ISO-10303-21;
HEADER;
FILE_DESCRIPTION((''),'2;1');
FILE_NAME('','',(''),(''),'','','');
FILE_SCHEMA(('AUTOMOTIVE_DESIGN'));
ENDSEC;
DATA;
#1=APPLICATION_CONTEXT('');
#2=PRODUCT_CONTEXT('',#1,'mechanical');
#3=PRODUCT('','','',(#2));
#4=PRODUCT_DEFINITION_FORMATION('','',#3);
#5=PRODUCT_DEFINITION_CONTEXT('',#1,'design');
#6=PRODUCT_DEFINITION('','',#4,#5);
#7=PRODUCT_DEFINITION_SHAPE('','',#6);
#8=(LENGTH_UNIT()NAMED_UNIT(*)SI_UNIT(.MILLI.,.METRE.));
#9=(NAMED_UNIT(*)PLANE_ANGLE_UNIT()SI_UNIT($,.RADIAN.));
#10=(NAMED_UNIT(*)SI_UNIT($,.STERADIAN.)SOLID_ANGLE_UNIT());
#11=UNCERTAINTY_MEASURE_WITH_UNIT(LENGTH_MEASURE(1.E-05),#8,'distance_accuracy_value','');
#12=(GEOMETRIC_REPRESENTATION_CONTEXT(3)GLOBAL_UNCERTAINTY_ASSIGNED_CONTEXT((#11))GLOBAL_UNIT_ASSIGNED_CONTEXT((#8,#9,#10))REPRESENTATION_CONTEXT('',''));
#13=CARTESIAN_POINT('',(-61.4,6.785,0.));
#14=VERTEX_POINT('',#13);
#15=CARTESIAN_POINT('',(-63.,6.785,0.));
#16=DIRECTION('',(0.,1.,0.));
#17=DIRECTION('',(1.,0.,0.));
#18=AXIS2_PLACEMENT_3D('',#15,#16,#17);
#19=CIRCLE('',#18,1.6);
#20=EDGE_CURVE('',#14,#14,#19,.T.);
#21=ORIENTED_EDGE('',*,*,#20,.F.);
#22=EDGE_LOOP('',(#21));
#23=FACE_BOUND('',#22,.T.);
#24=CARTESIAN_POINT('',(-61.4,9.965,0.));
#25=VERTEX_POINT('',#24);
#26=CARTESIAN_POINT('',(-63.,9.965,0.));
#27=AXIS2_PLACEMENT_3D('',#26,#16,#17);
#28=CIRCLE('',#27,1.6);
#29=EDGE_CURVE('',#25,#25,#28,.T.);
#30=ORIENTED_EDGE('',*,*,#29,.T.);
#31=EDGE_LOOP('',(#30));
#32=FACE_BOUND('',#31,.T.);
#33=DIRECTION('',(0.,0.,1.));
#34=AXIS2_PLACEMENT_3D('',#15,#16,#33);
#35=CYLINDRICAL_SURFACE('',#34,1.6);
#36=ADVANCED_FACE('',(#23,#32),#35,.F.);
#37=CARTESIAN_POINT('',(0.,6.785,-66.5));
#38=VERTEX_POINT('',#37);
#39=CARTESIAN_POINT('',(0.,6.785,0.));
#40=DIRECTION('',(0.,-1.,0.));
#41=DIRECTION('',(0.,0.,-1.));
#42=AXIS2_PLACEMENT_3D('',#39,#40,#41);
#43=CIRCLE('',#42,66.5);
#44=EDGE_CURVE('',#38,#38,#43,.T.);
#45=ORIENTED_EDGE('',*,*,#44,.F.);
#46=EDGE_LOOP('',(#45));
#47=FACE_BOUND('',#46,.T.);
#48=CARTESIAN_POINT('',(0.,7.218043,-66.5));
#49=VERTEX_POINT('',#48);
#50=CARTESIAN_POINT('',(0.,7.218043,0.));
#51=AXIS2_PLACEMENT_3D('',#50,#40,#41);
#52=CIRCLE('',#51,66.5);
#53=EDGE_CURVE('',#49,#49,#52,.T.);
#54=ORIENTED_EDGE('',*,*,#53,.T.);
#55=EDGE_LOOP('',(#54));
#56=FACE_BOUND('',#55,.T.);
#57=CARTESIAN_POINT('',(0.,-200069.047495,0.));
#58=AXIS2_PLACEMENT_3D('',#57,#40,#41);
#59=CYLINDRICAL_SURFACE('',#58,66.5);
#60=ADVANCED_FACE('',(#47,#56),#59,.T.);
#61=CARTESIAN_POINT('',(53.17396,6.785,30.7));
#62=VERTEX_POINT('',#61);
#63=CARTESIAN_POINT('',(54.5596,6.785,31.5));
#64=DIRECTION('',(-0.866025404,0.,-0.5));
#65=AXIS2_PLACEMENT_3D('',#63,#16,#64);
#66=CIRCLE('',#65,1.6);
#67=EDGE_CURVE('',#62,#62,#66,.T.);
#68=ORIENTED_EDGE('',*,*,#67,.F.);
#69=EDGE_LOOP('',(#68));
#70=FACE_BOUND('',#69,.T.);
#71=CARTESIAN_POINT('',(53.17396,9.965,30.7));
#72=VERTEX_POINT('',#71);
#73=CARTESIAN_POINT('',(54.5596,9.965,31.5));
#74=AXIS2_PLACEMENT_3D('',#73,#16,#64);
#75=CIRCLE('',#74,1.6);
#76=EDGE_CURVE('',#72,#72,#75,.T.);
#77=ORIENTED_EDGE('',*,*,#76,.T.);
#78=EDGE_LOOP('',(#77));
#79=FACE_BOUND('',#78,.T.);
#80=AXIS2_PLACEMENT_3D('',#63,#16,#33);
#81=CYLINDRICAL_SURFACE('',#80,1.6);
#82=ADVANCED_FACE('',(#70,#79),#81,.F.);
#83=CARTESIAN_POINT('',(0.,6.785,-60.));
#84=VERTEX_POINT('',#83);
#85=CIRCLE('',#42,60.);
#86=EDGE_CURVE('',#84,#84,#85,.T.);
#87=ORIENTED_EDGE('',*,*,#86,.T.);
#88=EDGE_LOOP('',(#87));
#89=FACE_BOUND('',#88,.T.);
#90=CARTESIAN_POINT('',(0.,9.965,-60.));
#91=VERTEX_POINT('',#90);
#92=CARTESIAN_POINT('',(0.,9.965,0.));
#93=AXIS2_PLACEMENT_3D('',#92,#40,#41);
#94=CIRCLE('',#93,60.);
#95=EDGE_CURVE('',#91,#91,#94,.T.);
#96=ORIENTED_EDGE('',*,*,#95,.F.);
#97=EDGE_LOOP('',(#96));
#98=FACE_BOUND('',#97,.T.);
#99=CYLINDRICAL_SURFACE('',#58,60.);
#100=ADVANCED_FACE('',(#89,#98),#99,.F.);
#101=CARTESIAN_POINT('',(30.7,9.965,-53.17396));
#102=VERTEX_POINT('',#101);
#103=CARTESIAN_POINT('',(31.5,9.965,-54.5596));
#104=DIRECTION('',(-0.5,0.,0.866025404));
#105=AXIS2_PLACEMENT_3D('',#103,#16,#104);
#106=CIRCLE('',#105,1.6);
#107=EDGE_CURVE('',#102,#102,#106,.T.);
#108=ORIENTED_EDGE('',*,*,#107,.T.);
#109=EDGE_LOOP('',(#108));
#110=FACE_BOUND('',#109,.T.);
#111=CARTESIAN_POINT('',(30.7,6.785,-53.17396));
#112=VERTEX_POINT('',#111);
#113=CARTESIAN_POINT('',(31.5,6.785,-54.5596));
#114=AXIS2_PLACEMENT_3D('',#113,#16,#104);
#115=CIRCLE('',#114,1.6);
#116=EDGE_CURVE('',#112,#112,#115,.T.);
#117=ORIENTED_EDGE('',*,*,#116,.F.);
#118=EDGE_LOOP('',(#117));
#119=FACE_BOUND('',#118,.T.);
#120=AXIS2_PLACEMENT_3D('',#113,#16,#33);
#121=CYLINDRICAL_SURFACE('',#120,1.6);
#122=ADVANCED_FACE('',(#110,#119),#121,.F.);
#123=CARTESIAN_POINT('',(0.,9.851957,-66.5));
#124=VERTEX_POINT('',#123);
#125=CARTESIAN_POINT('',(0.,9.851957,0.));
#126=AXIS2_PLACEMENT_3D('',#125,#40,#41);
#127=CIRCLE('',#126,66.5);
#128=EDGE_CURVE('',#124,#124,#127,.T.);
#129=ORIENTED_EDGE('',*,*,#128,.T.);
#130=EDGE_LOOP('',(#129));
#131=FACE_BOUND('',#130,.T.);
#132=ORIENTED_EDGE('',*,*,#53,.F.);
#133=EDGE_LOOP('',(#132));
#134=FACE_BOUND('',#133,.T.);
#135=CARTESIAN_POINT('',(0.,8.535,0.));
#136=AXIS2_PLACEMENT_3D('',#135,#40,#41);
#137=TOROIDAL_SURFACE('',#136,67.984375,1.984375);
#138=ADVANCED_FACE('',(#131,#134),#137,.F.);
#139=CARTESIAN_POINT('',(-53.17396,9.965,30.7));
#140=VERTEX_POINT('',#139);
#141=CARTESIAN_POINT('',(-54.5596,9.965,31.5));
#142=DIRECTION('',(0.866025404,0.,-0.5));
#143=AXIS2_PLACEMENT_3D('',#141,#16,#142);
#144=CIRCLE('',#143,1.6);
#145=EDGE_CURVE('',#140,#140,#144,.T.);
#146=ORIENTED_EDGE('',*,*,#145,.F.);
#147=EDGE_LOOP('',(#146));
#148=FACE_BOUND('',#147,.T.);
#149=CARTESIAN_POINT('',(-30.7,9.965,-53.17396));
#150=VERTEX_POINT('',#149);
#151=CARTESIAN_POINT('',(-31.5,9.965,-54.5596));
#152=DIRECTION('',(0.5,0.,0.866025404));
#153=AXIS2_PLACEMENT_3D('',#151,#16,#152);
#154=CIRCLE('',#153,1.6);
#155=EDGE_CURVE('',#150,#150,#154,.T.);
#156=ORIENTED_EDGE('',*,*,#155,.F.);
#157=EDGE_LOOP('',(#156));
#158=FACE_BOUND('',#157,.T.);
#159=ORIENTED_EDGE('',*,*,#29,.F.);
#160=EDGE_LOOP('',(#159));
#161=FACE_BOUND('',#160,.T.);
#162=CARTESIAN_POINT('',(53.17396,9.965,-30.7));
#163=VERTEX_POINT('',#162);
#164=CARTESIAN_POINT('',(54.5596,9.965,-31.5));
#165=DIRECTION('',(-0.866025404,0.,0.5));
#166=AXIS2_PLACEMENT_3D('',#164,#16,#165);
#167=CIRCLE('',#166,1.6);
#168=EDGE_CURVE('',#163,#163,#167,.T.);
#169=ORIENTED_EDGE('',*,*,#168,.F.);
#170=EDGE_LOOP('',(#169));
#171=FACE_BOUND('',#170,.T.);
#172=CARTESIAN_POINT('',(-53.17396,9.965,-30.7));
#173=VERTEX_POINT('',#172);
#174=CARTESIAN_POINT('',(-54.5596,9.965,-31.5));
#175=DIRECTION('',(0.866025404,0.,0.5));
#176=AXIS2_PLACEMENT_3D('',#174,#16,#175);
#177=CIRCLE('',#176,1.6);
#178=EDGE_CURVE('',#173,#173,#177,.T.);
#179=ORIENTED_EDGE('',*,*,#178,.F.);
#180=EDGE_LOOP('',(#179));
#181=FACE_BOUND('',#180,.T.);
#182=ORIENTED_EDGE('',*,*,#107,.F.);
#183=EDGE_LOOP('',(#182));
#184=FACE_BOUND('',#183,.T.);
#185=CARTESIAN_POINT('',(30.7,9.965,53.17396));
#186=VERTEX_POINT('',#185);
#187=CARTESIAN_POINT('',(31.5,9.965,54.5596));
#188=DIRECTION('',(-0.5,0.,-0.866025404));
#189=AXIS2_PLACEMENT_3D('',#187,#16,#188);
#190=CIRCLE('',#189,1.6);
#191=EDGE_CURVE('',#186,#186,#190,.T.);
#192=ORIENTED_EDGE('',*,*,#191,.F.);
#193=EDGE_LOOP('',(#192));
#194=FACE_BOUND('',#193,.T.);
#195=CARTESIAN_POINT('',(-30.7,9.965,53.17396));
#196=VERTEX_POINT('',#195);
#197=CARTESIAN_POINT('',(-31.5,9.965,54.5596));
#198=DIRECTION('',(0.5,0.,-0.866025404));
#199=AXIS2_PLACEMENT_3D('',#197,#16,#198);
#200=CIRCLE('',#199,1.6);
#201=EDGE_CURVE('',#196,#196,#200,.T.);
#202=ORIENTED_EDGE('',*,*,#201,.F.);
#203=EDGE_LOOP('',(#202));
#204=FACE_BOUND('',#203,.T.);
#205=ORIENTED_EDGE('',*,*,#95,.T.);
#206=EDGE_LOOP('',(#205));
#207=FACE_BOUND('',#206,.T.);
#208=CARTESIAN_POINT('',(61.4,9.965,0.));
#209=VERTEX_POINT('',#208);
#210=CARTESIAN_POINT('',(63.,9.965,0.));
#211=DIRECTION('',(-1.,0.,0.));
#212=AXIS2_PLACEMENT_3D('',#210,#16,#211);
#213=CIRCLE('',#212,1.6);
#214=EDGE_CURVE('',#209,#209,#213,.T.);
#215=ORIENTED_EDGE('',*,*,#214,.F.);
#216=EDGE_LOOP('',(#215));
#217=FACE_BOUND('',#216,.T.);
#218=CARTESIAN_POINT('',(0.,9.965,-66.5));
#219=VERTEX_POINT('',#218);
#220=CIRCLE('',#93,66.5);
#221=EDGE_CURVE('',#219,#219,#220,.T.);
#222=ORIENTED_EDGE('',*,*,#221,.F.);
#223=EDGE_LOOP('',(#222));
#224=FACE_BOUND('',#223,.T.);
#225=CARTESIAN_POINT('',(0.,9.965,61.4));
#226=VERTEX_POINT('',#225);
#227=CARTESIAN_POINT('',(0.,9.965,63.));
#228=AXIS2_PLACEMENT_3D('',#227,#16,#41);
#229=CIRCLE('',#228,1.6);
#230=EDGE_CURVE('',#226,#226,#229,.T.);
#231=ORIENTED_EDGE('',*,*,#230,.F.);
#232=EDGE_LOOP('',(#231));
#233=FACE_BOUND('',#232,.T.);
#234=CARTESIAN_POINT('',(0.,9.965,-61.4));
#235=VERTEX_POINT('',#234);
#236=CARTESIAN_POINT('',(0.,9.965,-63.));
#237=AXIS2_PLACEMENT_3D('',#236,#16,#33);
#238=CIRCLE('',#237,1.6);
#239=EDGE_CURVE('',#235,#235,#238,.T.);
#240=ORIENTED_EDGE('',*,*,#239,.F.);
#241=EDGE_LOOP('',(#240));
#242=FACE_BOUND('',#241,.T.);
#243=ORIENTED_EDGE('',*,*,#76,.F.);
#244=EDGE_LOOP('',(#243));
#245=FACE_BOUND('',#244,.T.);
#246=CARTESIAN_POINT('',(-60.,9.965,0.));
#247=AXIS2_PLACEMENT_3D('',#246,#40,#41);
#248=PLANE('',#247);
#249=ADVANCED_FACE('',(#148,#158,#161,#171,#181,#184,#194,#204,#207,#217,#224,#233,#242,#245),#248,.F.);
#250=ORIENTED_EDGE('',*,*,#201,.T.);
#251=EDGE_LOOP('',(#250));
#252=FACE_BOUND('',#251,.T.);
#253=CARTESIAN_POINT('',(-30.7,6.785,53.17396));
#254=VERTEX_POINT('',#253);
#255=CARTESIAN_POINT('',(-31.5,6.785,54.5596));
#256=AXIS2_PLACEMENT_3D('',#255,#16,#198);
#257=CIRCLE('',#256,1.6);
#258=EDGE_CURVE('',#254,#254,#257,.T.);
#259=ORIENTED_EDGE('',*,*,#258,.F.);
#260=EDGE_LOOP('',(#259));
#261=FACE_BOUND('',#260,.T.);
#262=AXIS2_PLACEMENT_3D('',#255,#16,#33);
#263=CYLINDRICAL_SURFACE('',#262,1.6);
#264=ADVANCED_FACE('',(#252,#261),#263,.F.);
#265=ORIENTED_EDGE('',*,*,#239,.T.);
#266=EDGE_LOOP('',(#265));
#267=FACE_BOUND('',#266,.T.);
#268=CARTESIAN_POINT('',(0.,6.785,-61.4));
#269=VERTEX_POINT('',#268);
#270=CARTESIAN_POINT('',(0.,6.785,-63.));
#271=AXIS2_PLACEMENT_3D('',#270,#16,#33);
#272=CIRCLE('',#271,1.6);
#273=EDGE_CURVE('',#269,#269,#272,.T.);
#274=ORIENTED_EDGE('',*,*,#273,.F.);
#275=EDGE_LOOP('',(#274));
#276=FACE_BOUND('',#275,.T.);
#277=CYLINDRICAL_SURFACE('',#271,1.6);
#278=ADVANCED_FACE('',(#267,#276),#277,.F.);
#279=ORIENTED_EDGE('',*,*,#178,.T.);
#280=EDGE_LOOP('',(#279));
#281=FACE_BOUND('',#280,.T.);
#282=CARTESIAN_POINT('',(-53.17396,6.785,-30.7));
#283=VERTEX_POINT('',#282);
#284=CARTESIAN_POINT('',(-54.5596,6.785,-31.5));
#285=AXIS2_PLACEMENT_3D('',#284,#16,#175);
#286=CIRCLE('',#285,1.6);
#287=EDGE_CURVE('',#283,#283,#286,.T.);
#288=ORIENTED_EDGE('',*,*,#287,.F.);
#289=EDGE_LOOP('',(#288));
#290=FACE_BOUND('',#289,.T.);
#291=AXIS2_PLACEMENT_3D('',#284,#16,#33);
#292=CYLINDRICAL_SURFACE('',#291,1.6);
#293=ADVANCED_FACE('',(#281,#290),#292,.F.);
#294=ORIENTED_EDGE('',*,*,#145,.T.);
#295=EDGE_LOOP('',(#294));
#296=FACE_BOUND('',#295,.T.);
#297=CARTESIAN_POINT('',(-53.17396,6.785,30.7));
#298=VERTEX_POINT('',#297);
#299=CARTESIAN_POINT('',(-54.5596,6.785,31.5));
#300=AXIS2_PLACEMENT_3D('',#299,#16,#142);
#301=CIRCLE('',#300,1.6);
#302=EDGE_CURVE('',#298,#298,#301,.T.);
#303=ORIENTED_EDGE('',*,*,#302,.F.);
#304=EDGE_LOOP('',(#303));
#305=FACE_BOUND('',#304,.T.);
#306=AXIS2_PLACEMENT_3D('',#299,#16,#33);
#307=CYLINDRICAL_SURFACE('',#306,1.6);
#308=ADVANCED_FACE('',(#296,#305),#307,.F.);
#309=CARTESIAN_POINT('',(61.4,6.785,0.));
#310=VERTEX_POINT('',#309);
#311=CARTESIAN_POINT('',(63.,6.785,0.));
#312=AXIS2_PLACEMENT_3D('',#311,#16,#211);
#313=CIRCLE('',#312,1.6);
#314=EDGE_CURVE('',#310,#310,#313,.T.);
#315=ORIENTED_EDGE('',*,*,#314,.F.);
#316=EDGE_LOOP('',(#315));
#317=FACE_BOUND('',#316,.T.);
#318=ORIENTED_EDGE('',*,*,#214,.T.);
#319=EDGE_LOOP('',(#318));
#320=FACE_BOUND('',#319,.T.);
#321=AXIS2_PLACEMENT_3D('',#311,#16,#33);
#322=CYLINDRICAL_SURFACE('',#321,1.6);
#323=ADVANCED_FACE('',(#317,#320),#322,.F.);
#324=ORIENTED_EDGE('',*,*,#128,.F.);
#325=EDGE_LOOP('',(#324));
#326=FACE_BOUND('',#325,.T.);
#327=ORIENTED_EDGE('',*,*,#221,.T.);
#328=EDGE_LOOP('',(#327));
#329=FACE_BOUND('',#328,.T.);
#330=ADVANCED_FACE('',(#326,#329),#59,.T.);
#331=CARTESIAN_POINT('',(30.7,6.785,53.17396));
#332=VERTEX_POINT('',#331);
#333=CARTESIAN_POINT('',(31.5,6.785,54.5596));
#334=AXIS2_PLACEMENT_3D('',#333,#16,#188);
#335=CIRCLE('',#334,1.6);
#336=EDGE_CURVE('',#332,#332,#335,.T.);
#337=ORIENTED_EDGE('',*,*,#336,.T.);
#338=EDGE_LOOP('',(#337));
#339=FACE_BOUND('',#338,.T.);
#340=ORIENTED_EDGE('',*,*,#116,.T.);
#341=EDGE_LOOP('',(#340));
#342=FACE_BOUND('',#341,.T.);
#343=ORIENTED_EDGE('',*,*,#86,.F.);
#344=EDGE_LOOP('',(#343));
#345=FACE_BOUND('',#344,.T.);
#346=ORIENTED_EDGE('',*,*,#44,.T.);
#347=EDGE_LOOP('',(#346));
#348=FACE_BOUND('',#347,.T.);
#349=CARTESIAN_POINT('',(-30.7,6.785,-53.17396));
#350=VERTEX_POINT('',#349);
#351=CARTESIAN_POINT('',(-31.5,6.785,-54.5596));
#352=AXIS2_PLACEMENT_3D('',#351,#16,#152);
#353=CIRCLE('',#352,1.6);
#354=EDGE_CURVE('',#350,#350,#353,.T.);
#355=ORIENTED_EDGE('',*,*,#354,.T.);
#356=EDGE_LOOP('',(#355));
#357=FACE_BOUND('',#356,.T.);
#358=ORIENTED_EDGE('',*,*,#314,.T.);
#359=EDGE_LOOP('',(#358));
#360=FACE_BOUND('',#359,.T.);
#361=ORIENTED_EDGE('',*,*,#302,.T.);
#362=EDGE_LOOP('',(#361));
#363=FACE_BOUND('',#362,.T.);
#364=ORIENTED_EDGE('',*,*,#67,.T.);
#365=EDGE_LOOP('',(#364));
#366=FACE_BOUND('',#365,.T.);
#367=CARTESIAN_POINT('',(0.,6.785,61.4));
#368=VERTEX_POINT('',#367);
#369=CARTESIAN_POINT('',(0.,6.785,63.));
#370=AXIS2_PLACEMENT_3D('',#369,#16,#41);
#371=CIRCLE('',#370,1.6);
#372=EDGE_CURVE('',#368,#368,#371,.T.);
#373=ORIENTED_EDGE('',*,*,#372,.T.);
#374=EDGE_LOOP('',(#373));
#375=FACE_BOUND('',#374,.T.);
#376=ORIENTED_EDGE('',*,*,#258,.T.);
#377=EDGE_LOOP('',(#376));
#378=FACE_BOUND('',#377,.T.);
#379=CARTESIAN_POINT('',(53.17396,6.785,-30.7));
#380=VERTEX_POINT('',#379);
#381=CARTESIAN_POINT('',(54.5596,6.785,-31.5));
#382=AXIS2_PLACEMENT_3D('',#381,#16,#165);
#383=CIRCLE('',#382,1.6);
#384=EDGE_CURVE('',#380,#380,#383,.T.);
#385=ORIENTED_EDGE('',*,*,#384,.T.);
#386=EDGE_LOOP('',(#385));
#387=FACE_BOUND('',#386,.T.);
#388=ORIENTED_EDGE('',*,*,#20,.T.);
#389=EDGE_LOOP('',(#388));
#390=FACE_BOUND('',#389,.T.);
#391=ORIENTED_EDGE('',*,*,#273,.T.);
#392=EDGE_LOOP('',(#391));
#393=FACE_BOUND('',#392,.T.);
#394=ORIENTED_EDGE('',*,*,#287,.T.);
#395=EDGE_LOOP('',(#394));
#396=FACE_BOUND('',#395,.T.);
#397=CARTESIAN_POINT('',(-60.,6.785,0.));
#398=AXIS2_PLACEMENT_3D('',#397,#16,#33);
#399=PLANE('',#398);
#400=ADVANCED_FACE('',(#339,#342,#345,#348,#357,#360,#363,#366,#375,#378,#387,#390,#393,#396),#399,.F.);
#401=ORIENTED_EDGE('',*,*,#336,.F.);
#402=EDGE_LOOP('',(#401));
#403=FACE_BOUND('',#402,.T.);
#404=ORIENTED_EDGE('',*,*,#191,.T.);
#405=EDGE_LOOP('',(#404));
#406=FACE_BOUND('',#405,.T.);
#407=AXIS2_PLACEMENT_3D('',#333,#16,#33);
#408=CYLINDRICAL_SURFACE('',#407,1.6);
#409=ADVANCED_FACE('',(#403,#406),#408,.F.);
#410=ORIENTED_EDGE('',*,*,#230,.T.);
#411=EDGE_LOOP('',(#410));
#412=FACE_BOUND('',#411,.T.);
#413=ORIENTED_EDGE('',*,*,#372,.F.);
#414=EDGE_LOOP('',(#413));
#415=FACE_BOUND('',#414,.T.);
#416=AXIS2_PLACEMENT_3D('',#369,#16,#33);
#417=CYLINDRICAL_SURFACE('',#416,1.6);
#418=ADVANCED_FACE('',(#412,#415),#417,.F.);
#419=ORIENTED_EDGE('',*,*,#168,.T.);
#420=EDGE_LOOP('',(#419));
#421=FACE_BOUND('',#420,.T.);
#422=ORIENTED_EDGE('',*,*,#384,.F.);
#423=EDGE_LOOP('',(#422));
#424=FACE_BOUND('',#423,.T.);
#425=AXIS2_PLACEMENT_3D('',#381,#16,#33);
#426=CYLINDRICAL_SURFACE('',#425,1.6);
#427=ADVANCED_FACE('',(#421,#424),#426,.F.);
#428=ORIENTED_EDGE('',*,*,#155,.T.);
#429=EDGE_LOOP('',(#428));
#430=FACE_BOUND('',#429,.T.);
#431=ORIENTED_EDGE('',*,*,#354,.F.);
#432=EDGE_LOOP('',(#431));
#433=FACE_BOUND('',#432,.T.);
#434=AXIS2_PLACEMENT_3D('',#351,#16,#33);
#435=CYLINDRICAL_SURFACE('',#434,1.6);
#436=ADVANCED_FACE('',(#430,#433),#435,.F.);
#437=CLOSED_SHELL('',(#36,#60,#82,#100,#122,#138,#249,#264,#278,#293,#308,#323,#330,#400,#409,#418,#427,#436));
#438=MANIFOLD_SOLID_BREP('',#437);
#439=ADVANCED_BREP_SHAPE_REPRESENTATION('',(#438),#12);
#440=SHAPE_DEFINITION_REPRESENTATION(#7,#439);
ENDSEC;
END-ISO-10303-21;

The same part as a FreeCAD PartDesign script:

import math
import FreeCAD as App
import Part
import Sketcher

V = App.Vector

doc = App.newDocument("Part")
params = doc.addObject("Spreadsheet::Sheet", "Params")
for row, (alias, value) in enumerate([
    ("sketch1_width", "6.5 mm"),
    ("sketch1_height", "3.18 mm"),
    ("revolution_angle", "360 deg"),
    ("sketch2_diameter", "3.2 mm"),
], start=1):
    params.set(f"A{row}", alias)
    params.set(f"B{row}", "=" + value)
    params.setAlias(f"B{row}", alias)

body = doc.addObject("PartDesign::Body", "Body")

# Sketch on XY plane
sketch1 = body.newObject("Sketcher::SketchObject", "Sketch")
sketch1.AttachmentSupport = (doc.getObject("XY_Plane"), [""])
sketch1.MapMode = "FlatFace"
sketch1.addGeometry([
    Part.LineSegment(V(-66.5, 9.96, 0), V(-66.5, 9.85, 0)),  # 0
    Part.ArcOfCircle(Part.Circle(V(-67.98, 8.54, 0), V(0, 0, 1), 1.98), math.radians(-42), math.radians(42)),  # 1
    Part.LineSegment(V(-66.5, 7.22, 0), V(-66.5, 6.79, 0)),  # 2
    Part.LineSegment(V(-66.5, 6.79, 0), V(-60, 6.79, 0)),  # 3
    Part.LineSegment(V(-60, 6.79, 0), V(-60, 9.96, 0)),  # 4
    Part.LineSegment(V(-60, 9.96, 0), V(-66.5, 9.96, 0)),  # 5
], False)
sketch1.addConstraint([
    Sketcher.Constraint("Coincident", 0, 2, 1, 2),
    Sketcher.Constraint("Coincident", 1, 1, 2, 1),
    Sketcher.Constraint("Coincident", 2, 2, 3, 1),
    Sketcher.Constraint("Coincident", 3, 2, 4, 1),
    Sketcher.Constraint("Coincident", 4, 2, 5, 1),
    Sketcher.Constraint("Coincident", 5, 2, 0, 1),
    Sketcher.Constraint("Vertical", 0),
    Sketcher.Constraint("Vertical", 2),
    Sketcher.Constraint("Horizontal", 3),
    Sketcher.Constraint("Vertical", 4),
    Sketcher.Constraint("Horizontal", 5),
    Sketcher.Constraint("Vertical", 0, 2, 1, 1),
    Sketcher.Constraint("DistanceX", 3, 1, 3, 2, 6.5),
    Sketcher.Constraint("DistanceX", 3, 2, -1, 1, 60.0),
    Sketcher.Constraint("DistanceY", 4, 1, 4, 2, 3.18),
    Sketcher.Constraint("DistanceY", 2, 2, 1, 3, 1.75),
    Sketcher.Constraint("DistanceY", -1, 1, 1, 3, 8.535),
    Sketcher.Constraint("Radius", 1, 1.984375),
    Sketcher.Constraint("DistanceY", 0, 2, 0, 1, 0.113043),
])
sketch1.setExpression("Constraints[12]", "Params.sketch1_width")
sketch1.setExpression("Constraints[14]", "Params.sketch1_height")
revolution = body.newObject("PartDesign::Revolution", "Revolution")
revolution.Profile = sketch1
revolution.ReferenceAxis = (sketch1, ["V_Axis"])
revolution.setExpression("Angle", "Params.revolution_angle")

# Sketch on XZ plane
sketch2 = body.newObject("Sketcher::SketchObject", "Sketch001")
sketch2.AttachmentSupport = (doc.getObject("XZ_Plane"), [""])
sketch2.MapMode = "FlatFace"
sketch2.AttachmentOffset = App.Placement(V(0, 0, -9.965), App.Rotation())
sketch2.addGeometry(Part.Circle(V(0, -63, 0), V(0, 0, 1), 1.6), False)
sketch2.addConstraint([
    Sketcher.Constraint("PointOnObject", 0, 3, -2),
    Sketcher.Constraint("Diameter", 0, 3.2),
    Sketcher.Constraint("DistanceY", 0, 3, -1, 1, 63.0),
])
sketch2.setExpression("Constraints[1]", "Params.sketch2_diameter")
pocket1 = body.newObject("PartDesign::Pocket", "Pocket")
pocket1.Profile = sketch2
pocket1.Type = "ThroughAll"
pocket1.Reversed = True
doc.recompute()

polarpattern = body.newObject("PartDesign::PolarPattern", "PolarPattern")
polarpattern.Originals = [pocket1]
polarpattern.Axis = (doc.getObject("Y_Axis"), [""])
polarpattern.Angle = 360
polarpattern.Occurrences = 12
body.Tip = polarpattern

doc.recompute()
